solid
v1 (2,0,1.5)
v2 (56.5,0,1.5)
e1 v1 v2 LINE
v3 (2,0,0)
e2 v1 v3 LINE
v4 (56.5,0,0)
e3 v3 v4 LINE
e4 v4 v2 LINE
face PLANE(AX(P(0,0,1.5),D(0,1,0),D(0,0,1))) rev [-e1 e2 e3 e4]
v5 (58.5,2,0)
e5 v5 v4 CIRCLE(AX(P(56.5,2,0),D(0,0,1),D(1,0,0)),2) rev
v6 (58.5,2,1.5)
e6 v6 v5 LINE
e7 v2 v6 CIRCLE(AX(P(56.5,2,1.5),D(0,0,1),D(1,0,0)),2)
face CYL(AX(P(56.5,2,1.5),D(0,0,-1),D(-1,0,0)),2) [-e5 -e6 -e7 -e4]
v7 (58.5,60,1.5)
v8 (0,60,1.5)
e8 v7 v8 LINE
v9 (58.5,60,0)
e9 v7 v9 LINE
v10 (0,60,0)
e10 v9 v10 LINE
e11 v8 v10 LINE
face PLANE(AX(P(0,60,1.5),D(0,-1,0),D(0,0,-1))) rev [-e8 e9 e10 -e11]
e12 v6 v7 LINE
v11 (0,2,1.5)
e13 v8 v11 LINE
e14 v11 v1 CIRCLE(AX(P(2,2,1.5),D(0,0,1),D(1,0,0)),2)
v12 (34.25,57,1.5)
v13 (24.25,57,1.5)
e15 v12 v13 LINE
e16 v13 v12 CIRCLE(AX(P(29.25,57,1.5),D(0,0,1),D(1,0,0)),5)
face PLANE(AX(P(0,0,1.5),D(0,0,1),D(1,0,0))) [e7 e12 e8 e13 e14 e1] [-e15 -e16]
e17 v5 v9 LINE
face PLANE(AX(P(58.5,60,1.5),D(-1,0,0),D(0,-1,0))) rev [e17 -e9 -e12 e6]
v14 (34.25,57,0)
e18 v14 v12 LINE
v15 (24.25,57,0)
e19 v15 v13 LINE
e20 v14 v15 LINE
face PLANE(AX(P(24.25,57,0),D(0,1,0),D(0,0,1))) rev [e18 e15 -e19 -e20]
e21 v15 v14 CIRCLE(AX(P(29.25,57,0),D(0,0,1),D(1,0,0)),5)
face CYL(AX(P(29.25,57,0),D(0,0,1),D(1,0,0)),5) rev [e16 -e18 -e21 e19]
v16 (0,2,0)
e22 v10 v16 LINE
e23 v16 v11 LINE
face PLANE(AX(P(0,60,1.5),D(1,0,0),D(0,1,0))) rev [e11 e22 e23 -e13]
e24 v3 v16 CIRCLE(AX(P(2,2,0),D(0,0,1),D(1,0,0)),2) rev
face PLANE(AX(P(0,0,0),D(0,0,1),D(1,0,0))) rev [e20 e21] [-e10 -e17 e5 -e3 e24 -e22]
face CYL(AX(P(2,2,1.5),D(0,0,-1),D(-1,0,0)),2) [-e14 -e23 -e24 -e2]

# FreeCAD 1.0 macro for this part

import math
import FreeCAD as App
import Part
import Sketcher

V = App.Vector
Q = App.Units.Quantity


def edges_at(feature, points):
    """Names of the edges that pass closest to the given points."""
    edges = feature.Shape.Edges
    near = lambda p: min(range(len(edges)), key=lambda i: edges[i].distToShape(Part.Vertex(*p))[0])
    return sorted({f"Edge{near(p) + 1}" for p in points})


def add_polygon(sketch, points):
    """Adds a closed chain of lines whose ends are joined by coincident constraints."""
    first, n = sketch.GeometryCount, len(points)
    for a, b in zip(points, points[1:] + points[:1]):
        sketch.addGeometry(Part.LineSegment(App.Vector(*a, 0), App.Vector(*b, 0)), False)
    for i in range(n):
        sketch.addConstraint(Sketcher.Constraint("Coincident", first + i, 2, first + (i + 1) % n, 1))

doc = App.newDocument("Part")
body = doc.addObject("PartDesign::Body", "Body")

# Sketch on XY plane
sketch1 = body.newObject("Sketcher::SketchObject", "Sketch")
sketch1.AttachmentSupport = (doc.getObject("XY_Plane"), [""])
sketch1.MapMode = "FlatFace"
add_polygon(sketch1, [(0, 60), (0, 0), (58, 0), (58, 60)])  # lines 0-3
sketch1.addConstraint(Sketcher.Constraint("Vertical", 0))
sketch1.addConstraint(Sketcher.Constraint("Horizontal", 1))
sketch1.addConstraint(Sketcher.Constraint("Vertical", 2))
sketch1.addConstraint(Sketcher.Constraint("Horizontal", 3))
sketch1.addConstraint(Sketcher.Constraint("Coincident", 0, 2, -1, 1))
sketch1.addConstraint(Sketcher.Constraint("DistanceY", 0, 2, 0, 1, Q("60 mm")))
sketch1.addConstraint(Sketcher.Constraint("DistanceX", 1, 1, 1, 2, Q("58.5 mm")))
pad1 = body.newObject("PartDesign::Pad", "Pad")
pad1.Profile = sketch1
pad1.Length = 1.5
doc.recompute()

fillet = body.newObject("PartDesign::Fillet", "Fillet")
fillet.Base = (pad1, edges_at(pad1, [(58.5, 0, 0.75), (0, 0, 0.75)]))
fillet.Radius = 2

# Sketch on XY plane
sketch2 = body.newObject("Sketcher::SketchObject", "Sketch001")
sketch2.AttachmentSupport = (doc.getObject("XY_Plane"), [""])
sketch2.MapMode = "FlatFace"
sketch2.AttachmentOffset = App.Placement(V(0, 0, 1.5), App.Rotation())
sketch2.addGeometry(Part.LineSegment(V(34, 57, 0), V(24, 57, 0)), False)
sketch2.addGeometry(Part.ArcOfCircle(Part.Circle(V(29, 57, 0), V(0, 0, 1), 5), math.radians(180), math.radians(360)), False)
sketch2.addConstraint(Sketcher.Constraint("Coincident", 0, 1, 1, 2))
sketch2.addConstraint(Sketcher.Constraint("Coincident", 1, 1, 0, 2))
sketch2.addConstraint(Sketcher.Constraint("Horizontal", 0))
sketch2.addConstraint(Sketcher.Constraint("Horizontal", 1, 3, 0, 1))
sketch2.addConstraint(Sketcher.Constraint("Radius", 1, Q("5 mm")))
sketch2.addConstraint(Sketcher.Constraint("DistanceY", -1, 1, 1, 3, Q("57 mm")))
sketch2.addConstraint(Sketcher.Constraint("DistanceX", -1, 1, 1, 3, Q("29.25 mm")))
pocket1 = body.newObject("PartDesign::Pocket", "Pocket")
pocket1.Profile = sketch2
pocket1.Type = "ThroughAll"

doc.recompute()
